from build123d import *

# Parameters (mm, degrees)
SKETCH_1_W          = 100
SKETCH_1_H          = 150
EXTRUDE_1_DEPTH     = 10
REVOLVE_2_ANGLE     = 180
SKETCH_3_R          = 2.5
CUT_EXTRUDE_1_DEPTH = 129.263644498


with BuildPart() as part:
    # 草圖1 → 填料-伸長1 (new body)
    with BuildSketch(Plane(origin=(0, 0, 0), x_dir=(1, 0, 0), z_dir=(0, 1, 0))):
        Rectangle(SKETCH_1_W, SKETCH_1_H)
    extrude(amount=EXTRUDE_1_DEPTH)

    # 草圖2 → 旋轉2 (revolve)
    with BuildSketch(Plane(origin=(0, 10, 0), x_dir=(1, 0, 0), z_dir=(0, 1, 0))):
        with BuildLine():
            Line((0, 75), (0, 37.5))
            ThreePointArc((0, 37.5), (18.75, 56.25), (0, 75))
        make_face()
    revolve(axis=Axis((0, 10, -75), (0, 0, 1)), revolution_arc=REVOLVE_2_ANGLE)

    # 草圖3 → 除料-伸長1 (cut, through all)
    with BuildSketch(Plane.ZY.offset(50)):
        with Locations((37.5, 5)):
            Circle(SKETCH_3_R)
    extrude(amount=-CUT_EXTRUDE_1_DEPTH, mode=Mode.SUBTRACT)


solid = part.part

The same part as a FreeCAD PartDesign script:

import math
import FreeCAD as App
import Part
import Sketcher

V = App.Vector
Q = App.Units.Quantity


def add_polygon(sketch, points):
    """Adds a closed chain of lines whose ends are joined by coincident constraints."""
    first, n = sketch.GeometryCount, len(points)
    for a, b in zip(points, points[1:] + points[:1]):
        sketch.addGeometry(Part.LineSegment(App.Vector(*a, 0), App.Vector(*b, 0)), False)
    for i in range(n):
        sketch.addConstraint(Sketcher.Constraint("Coincident", first + i, 2, first + (i + 1) % n, 1))

doc = App.newDocument("Part")
body = doc.addObject("PartDesign::Body", "Body")

# Sketch on XZ plane
sketch1 = body.newObject("Sketcher::SketchObject", "Sketch")
sketch1.AttachmentSupport = (doc.getObject("XZ_Plane"), [""])
sketch1.MapMode = "FlatFace"
add_polygon(sketch1, [(-50, -75), (-50, 75), (50, 75), (50, -75)])  # lines 0-3
sketch1.addConstraint(Sketcher.Constraint("Vertical", 0))
sketch1.addConstraint(Sketcher.Constraint("Horizontal", 1))
sketch1.addConstraint(Sketcher.Constraint("Vertical", 2))
sketch1.addConstraint(Sketcher.Constraint("Horizontal", 3))
sketch1.addConstraint(Sketcher.Constraint("Symmetric", 0, 2, 2, 2, -1, 1))
sketch1.addConstraint(Sketcher.Constraint("DistanceX", 1, 1, 1, 2, Q("100 mm")))
sketch1.addConstraint(Sketcher.Constraint("DistanceY", 0, 1, 0, 2, Q("150 mm")))
pad1 = body.newObject("PartDesign::Pad", "Pad")
pad1.Profile = sketch1
pad1.Length = 10
pad1.Reversed = True

# Sketch on XZ plane
sketch2 = body.newObject("Sketcher::SketchObject", "Sketch001")
sketch2.AttachmentSupport = (doc.getObject("XZ_Plane"), [""])
sketch2.MapMode = "FlatFace"
sketch2.AttachmentOffset = App.Placement(V(0, 0, -10), App.Rotation())
sketch2.addGeometry(Part.LineSegment(V(0, -75, 0), V(0, -38, 0)), False)
sketch2.addGeometry(Part.ArcOfCircle(Part.Circle(V(0, -56, 0), V(0, 0, 1), 19), math.radians(-90), math.radians(90)), False)
sketch2.addConstraint(Sketcher.Constraint("Coincident", 0, 1, 1, 1))
sketch2.addConstraint(Sketcher.Constraint("Coincident", 1, 2, 0, 2))
sketch2.addConstraint(Sketcher.Constraint("Vertical", 0))
sketch2.addConstraint(Sketcher.Constraint("PointOnObject", 1, 3, -2))
sketch2.addConstraint(Sketcher.Constraint("PointOnObject", 0, 1, -2))
sketch2.addConstraint(Sketcher.Constraint("Radius", 1, Q("18.75 mm")))
sketch2.addConstraint(Sketcher.Constraint("DistanceY", 0, 1, -1, 1, Q("75 mm")))
revolution = body.newObject("PartDesign::Revolution", "Revolution")
revolution.Profile = sketch2
revolution.ReferenceAxis = (sketch2, ["V_Axis"])
revolution.Angle = 180

# Sketch on YZ plane
sketch3 = body.newObject("Sketcher::SketchObject", "Sketch002")
sketch3.AttachmentSupport = (doc.getObject("YZ_Plane"), [""])
sketch3.MapMode = "FlatFace"
sketch3.AttachmentOffset = App.Placement(V(0, 0, -50), App.Rotation())
sketch3.addGeometry(Part.Circle(V(5, 37.5, 0), V(0, 0, 1), 2.5), False)
sketch3.addConstraint(Sketcher.Constraint("Diameter", 0, Q("5 mm")))
sketch3.addConstraint(Sketcher.Constraint("DistanceX", -1, 1, 0, 3, Q("5 mm")))
sketch3.addConstraint(Sketcher.Constraint("DistanceY", -1, 1, 0, 3, Q("37.5 mm")))
pocket1 = body.newObject("PartDesign::Pocket", "Pocket")
pocket1.Profile = sketch3
pocket1.Type = "ThroughAll"
pocket1.Reversed = True

doc.recompute()
